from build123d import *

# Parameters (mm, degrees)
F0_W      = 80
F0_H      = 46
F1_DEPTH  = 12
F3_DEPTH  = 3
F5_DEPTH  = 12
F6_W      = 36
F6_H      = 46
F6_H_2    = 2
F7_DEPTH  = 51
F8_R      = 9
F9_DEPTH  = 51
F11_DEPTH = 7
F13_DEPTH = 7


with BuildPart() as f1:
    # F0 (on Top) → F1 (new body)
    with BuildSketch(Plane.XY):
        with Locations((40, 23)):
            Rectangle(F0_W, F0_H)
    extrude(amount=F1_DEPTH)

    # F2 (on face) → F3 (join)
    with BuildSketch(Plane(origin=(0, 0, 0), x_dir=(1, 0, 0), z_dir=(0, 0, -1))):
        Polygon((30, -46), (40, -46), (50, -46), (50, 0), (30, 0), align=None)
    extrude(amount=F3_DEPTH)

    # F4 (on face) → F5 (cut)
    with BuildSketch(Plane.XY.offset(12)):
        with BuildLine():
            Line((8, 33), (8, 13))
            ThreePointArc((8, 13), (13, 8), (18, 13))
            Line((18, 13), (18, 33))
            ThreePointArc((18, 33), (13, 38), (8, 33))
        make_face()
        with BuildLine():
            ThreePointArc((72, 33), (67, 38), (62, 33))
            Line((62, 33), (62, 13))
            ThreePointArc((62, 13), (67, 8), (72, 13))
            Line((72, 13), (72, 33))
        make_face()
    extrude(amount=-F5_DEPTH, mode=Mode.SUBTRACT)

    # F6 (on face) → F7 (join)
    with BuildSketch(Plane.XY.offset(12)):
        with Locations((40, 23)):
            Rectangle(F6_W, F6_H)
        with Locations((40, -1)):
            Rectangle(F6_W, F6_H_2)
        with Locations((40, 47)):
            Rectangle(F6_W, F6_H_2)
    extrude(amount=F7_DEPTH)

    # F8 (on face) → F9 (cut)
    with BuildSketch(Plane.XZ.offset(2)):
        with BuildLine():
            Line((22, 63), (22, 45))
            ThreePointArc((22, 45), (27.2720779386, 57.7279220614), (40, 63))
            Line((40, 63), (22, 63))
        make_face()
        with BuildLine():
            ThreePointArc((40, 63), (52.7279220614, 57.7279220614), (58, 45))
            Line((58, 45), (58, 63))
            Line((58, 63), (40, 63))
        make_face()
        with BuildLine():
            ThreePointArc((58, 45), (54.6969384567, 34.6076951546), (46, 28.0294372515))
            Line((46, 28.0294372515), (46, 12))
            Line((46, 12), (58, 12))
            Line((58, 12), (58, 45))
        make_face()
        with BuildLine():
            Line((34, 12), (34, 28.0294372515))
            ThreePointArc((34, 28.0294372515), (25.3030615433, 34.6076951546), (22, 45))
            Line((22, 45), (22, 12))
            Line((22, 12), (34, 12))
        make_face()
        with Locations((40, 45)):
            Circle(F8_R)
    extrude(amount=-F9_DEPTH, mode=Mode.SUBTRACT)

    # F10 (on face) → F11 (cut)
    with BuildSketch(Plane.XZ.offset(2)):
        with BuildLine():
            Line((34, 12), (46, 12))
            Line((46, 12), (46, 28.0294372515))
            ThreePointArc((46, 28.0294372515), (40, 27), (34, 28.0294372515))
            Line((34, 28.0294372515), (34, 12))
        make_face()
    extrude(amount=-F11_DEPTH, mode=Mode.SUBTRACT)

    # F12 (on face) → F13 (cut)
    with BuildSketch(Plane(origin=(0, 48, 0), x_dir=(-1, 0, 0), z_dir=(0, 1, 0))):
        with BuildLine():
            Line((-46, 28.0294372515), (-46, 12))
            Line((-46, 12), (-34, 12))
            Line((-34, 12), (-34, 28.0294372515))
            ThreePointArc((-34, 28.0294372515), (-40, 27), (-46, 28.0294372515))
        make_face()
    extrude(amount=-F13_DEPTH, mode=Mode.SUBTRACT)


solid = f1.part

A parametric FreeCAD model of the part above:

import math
import FreeCAD as App
import Part
import Sketcher
Q = App.Units.Quantity

doc = App.newDocument("Part")
params = doc.addObject("Spreadsheet::Sheet", "Params")
for row, (alias, value) in enumerate([
    ("sketch1_width", "80 mm"),
    ("sketch1_height", "46 mm"),
    ("pad1_length", "12 mm"),
    ("sketch2_width", "20 mm"),
    ("sketch2_height", "46 mm"),
    ("pad2_length", "3 mm"),
    ("sketch3_radius", "5 mm"),
    ("sketch3_height", "20 mm"),
    ("pocket1_length", "12 mm"),
    ("sketch4_width", "36 mm"),
    ("sketch4_height", "50 mm"),
    ("pad3_length", "51 mm"),
    ("sketch5_diameter", "18 mm"),
    ("sketch5_radius", "18 mm"),
    ("sketch5_width", "12 mm"),
    ("sketch5_height", "33 mm"),
    ("pocket2_length", "51 mm"),
    ("sketch6_radius", "18 mm"),
    ("sketch6_width", "12 mm"),
    ("pocket3_length", "7 mm"),
    ("sketch7_radius", "18 mm"),
    ("sketch7_width", "12 mm"),
    ("pocket4_length", "7 mm"),
], start=1):
    params.set(f"A{row}", alias)
    params.set(f"B{row}", "=" + value)
    params.setAlias(f"B{row}", alias)

body = doc.addObject("PartDesign::Body", "Body")

# Sketch on XY plane
sketch1 = doc.addObject("Sketcher::SketchObject", "Sketch")
body.addObject(sketch1)
sketch1.AttachmentSupport = (doc.XY_Plane, [""])
sketch1.MapMode = "FlatFace"
sketch1.addGeometry(Part.LineSegment(App.Vector(0, 46, 0), App.Vector(0, 0, 0)), False)
sketch1.addGeometry(Part.LineSegment(App.Vector(0, 0, 0), App.Vector(80, 0, 0)), False)
sketch1.addGeometry(Part.LineSegment(App.Vector(80, 0, 0), App.Vector(80, 46, 0)), False)
sketch1.addGeometry(Part.LineSegment(App.Vector(80, 46, 0), App.Vector(0, 46, 0)), False)
sketch1.addConstraint(Sketcher.Constraint("Coincident", 0, 2, 1, 1))
sketch1.addConstraint(Sketcher.Constraint("Coincident", 1, 2, 2, 1))
sketch1.addConstraint(Sketcher.Constraint("Coincident", 2, 2, 3, 1))
sketch1.addConstraint(Sketcher.Constraint("Coincident", 3, 2, 0, 1))
sketch1.addConstraint(Sketcher.Constraint("Vertical", 0))
sketch1.addConstraint(Sketcher.Constraint("Horizontal", 1))
sketch1.addConstraint(Sketcher.Constraint("Vertical", 2))
sketch1.addConstraint(Sketcher.Constraint("Horizontal", 3))
sketch1.addConstraint(Sketcher.Constraint("Coincident", 0, 2, -1, 1))
sketch1.addConstraint(Sketcher.Constraint("DistanceX", 1, 1, 1, 2, Q("80 mm")))
sketch1.addConstraint(Sketcher.Constraint("DistanceY", 0, 2, 0, 1, Q("46 mm")))
sketch1.setExpression("Constraints[9]", "Params.sketch1_width")
sketch1.setExpression("Constraints[10]", "Params.sketch1_height")
pad1 = doc.addObject("PartDesign::Pad", "Pad")
body.addObject(pad1)
pad1.Profile = sketch1
pad1.setExpression("Length", "Params.pad1_length")

# Sketch on XY plane
sketch2 = doc.addObject("Sketcher::SketchObject", "Sketch001")
body.addObject(sketch2)
sketch2.AttachmentSupport = (doc.XY_Plane, [""])
sketch2.MapMode = "FlatFace"
sketch2.addGeometry(Part.LineSegment(App.Vector(30, 46, 0), App.Vector(50, 46, 0)), False)
sketch2.addGeometry(Part.LineSegment(App.Vector(50, 46, 0), App.Vector(50, 0, 0)), False)
sketch2.addGeometry(Part.LineSegment(App.Vector(50, 0, 0), App.Vector(30, 0, 0)), False)
sketch2.addGeometry(Part.LineSegment(App.Vector(30, 0, 0), App.Vector(30, 46, 0)), False)
sketch2.addConstraint(Sketcher.Constraint("Coincident", 0, 2, 1, 1))
sketch2.addConstraint(Sketcher.Constraint("Coincident", 1, 2, 2, 1))
sketch2.addConstraint(Sketcher.Constraint("Coincident", 2, 2, 3, 1))
sketch2.addConstraint(Sketcher.Constraint("Coincident", 3, 2, 0, 1))
sketch2.addConstraint(Sketcher.Constraint("Horizontal", 0))
sketch2.addConstraint(Sketcher.Constraint("Vertical", 1))
sketch2.addConstraint(Sketcher.Constraint("Horizontal", 2))
sketch2.addConstraint(Sketcher.Constraint("Vertical", 3))
sketch2.addConstraint(Sketcher.Constraint("PointOnObject", 1, 2, -1))
sketch2.addConstraint(Sketcher.Constraint("DistanceX", 0, 1, 0, 2, Q("20 mm")))
sketch2.addConstraint(Sketcher.Constraint("DistanceY", 1, 2, 1, 1, Q("46 mm")))
sketch2.addConstraint(Sketcher.Constraint("DistanceX", -1, 1, 0, 2, Q("50 mm")))
sketch2.setExpression("Constraints[9]", "Params.sketch2_width")
sketch2.setExpression("Constraints[10]", "Params.sketch2_height")
pad2 = doc.addObject("PartDesign::Pad", "Pad001")
body.addObject(pad2)
pad2.Profile = sketch2
pad2.setExpression("Length", "Params.pad2_length")
pad2.Reversed = True

# Sketch on XY plane
sketch3 = doc.addObject("Sketcher::SketchObject", "Sketch002")
body.addObject(sketch3)
sketch3.AttachmentSupport = (doc.XY_Plane, [""])
sketch3.MapMode = "FlatFace"
sketch3.AttachmentOffset = App.Placement(App.Vector(0, 0, 12), App.Rotation())
sketch3.addGeometry(Part.LineSegment(App.Vector(8, 33, 0), App.Vector(8, 13, 0)), False)
sketch3.addGeometry(Part.ArcOfCircle(Part.Circle(App.Vector(13, 13, 0), App.Vector(0, 0, 1), 5), math.radians(180), math.radians(360)), False)
sketch3.addGeometry(Part.LineSegment(App.Vector(18, 13, 0), App.Vector(18, 33, 0)), False)
sketch3.addGeometry(Part.ArcOfCircle(Part.Circle(App.Vector(13, 33, 0), App.Vector(0, 0, 1), 5), math.radians(0), math.radians(180)), False)
sketch3.addGeometry(Part.ArcOfCircle(Part.Circle(App.Vector(67, 33, 0), App.Vector(0, 0, 1), 5), math.radians(0), math.radians(180)), False)
sketch3.addGeometry(Part.LineSegment(App.Vector(62, 33, 0), App.Vector(62, 13, 0)), False)
sketch3.addGeometry(Part.ArcOfCircle(Part.Circle(App.Vector(67, 13, 0), App.Vector(0, 0, 1), 5), math.radians(180), math.radians(360)), False)
sketch3.addGeometry(Part.LineSegment(App.Vector(72, 13, 0), App.Vector(72, 33, 0)), False)
sketch3.addConstraint(Sketcher.Constraint("Tangent", 0, 2, 1, 1))
sketch3.addConstraint(Sketcher.Constraint("Tangent", 1, 2, 2, 1))
sketch3.addConstraint(Sketcher.Constraint("Tangent", 2, 2, 3, 1))
sketch3.addConstraint(Sketcher.Constraint("Tangent", 3, 2, 0, 1))
sketch3.addConstraint(Sketcher.Constraint("Tangent", 4, 2, 5, 1))
sketch3.addConstraint(Sketcher.Constraint("Tangent", 5, 2, 6, 1))
sketch3.addConstraint(Sketcher.Constraint("Tangent", 6, 2, 7, 1))
sketch3.addConstraint(Sketcher.Constraint("Tangent", 7, 2, 4, 1))
sketch3.addConstraint(Sketcher.Constraint("Vertical", 0))
sketch3.addConstraint(Sketcher.Constraint("Vertical", 2))
sketch3.addConstraint(Sketcher.Constraint("Vertical", 5))
sketch3.addConstraint(Sketcher.Constraint("Vertical", 7))
sketch3.addConstraint(Sketcher.Constraint("Equal", 3, 4))
sketch3.addConstraint(Sketcher.Constraint("Horizontal", 3, 3, 4, 3))
sketch3.addConstraint(Sketcher.Constraint("Horizontal", 1, 3, 6, 3))
sketch3.addConstraint(Sketcher.Constraint("Radius", 1, Q("5 mm")))
sketch3.addConstraint(Sketcher.Constraint("DistanceY", 0, 2, 0, 1, Q("20 mm")))
sketch3.addConstraint(Sketcher.Constraint("DistanceX", -1, 1, 1, 3, Q("13 mm")))
sketch3.addConstraint(Sketcher.Constraint("DistanceY", -1, 1, 1, 3, Q("13 mm")))
sketch3.addConstraint(Sketcher.Constraint("DistanceX", -1, 1, 4, 3, Q("67 mm")))
sketch3.setExpression("Constraints[15]", "Params.sketch3_radius")
sketch3.setExpression("Constraints[16]", "Params.sketch3_height")
pocket1 = doc.addObject("PartDesign::Pocket", "Pocket")
body.addObject(pocket1)
pocket1.Profile = sketch3
pocket1.setExpression("Length", "Params.pocket1_length")

# Sketch on XY plane
sketch4 = doc.addObject("Sketcher::SketchObject", "Sketch003")
body.addObject(sketch4)
sketch4.AttachmentSupport = (doc.XY_Plane, [""])
sketch4.MapMode = "FlatFace"
sketch4.AttachmentOffset = App.Placement(App.Vector(0, 0, 12), App.Rotation())
sketch4.addGeometry(Part.LineSegment(App.Vector(22, -2, 0), App.Vector(58, -2, 0)), False)
sketch4.addGeometry(Part.LineSegment(App.Vector(58, -2, 0), App.Vector(58, 48, 0)), False)
sketch4.addGeometry(Part.LineSegment(App.Vector(58, 48, 0), App.Vector(22, 48, 0)), False)
sketch4.addGeometry(Part.LineSegment(App.Vector(22, 48, 0), App.Vector(22, -2, 0)), False)
sketch4.addConstraint(Sketcher.Constraint("Coincident", 0, 2, 1, 1))
sketch4.addConstraint(Sketcher.Constraint("Coincident", 1, 2, 2, 1))
sketch4.addConstraint(Sketcher.Constraint("Coincident", 2, 2, 3, 1))
sketch4.addConstraint(Sketcher.Constraint("Coincident", 3, 2, 0, 1))
sketch4.addConstraint(Sketcher.Constraint("Horizontal", 0))
sketch4.addConstraint(Sketcher.Constraint("Vertical", 1))
sketch4.addConstraint(Sketcher.Constraint("Horizontal", 2))
sketch4.addConstraint(Sketcher.Constraint("Vertical", 3))
sketch4.addConstraint(Sketcher.Constraint("DistanceX", 0, 1, 0, 2, Q("36 mm")))
sketch4.addConstraint(Sketcher.Constraint("DistanceY", 1, 1, 1, 2, Q("50 mm")))
sketch4.addConstraint(Sketcher.Constraint("DistanceX", -1, 1, 0, 2, Q("58 mm")))
sketch4.addConstraint(Sketcher.Constraint("DistanceY", 0, 2, -1, 1, Q("2 mm")))
sketch4.setExpression("Constraints[8]", "Params.sketch4_width")
sketch4.setExpression("Constraints[9]", "Params.sketch4_height")
pad3 = doc.addObject("PartDesign::Pad", "Pad002")
body.addObject(pad3)
pad3.Profile = sketch4
pad3.setExpression("Length", "Params.pad3_length")

# Sketch on XZ plane
sketch5 = doc.addObject("Sketcher::SketchObject", "Sketch004")
body.addObject(sketch5)
sketch5.AttachmentSupport = (doc.XZ_Plane, [""])
sketch5.MapMode = "FlatFace"
sketch5.AttachmentOffset = App.Placement(App.Vector(0, 0, 2), App.Rotation())
sketch5.addGeometry(Part.LineSegment(App.Vector(22, 63, 0), App.Vector(22, 45, 0)), False)
sketch5.addGeometry(Part.ArcOfCircle(Part.Circle(App.Vector(40, 45, 0), App.Vector(0, 0, 1), 18), math.radians(90), math.radians(180)), False)
sketch5.addGeometry(Part.LineSegment(App.Vector(40, 63, 0), App.Vector(22, 63, 0)), False)
sketch5.addGeometry(Part.ArcOfCircle(Part.Circle(App.Vector(40, 45, 0), App.Vector(0, 0, 1), 18), math.radians(0), math.radians(90)), False)
sketch5.addGeometry(Part.LineSegment(App.Vector(58, 45, 0), App.Vector(58, 63, 0)), False)
sketch5.addGeometry(Part.LineSegment(App.Vector(58, 63, 0), App.Vector(40, 63, 0)), False)
sketch5.addGeometry(Part.ArcOfCircle(Part.Circle(App.Vector(40, 45, 0), App.Vector(0, 0, 1), 18), math.radians(-70.528779), math.radians(0)), False)
sketch5.addGeometry(Part.LineSegment(App.Vector(46, 28.029437, 0), App.Vector(46, 12, 0)), False)
sketch5.addGeometry(Part.LineSegment(App.Vector(46, 12, 0), App.Vector(58, 12, 0)), False)
sketch5.addGeometry(Part.LineSegment(App.Vector(58, 12, 0), App.Vector(58, 45, 0)), False)
sketch5.addGeometry(Part.LineSegment(App.Vector(34, 12, 0), App.Vector(34, 28.029437, 0)), False)
sketch5.addGeometry(Part.ArcOfCircle(Part.Circle(App.Vector(40, 45, 0), App.Vector(0, 0, 1), 18), math.radians(180), math.radians(250.528779)), False)
sketch5.addGeometry(Part.LineSegment(App.Vector(22, 45, 0), App.Vector(22, 12, 0)), False)
sketch5.addGeometry(Part.LineSegment(App.Vector(22, 12, 0), App.Vector(34, 12, 0)), False)
sketch5.addGeometry(Part.Circle(App.Vector(40, 45, 0), App.Vector(0, 0, 1), 9), False)
sketch5.addConstraint(Sketcher.Constraint("Tangent", 0, 2, 1, 2))
sketch5.addConstraint(Sketcher.Constraint("Tangent", 1, 1, 2, 1))
sketch5.addConstraint(Sketcher.Constraint("Coincident", 2, 2, 0, 1))
sketch5.addConstraint(Sketcher.Constraint("Tangent", 3, 1, 4, 1))
sketch5.addConstraint(Sketcher.Constraint("Coincident", 4, 2, 5, 1))
sketch5.addConstraint(Sketcher.Constraint("Tangent", 5, 2, 3, 2))
sketch5.addConstraint(Sketcher.Constraint("Coincident", 6, 1, 7, 1))
sketch5.addConstraint(Sketcher.Constraint("Coincident", 7, 2, 8, 1))
sketch5.addConstraint(Sketcher.Constraint("Coincident", 8, 2, 9, 1))
sketch5.addConstraint(Sketcher.Constraint("Tangent", 9, 2, 6, 2))
sketch5.addConstraint(Sketcher.Constraint("Coincident", 10, 2, 11, 2))
sketch5.addConstraint(Sketcher.Constraint("Tangent", 11, 1, 12, 1))
sketch5.addConstraint(Sketcher.Constraint("Coincident", 12, 2, 13, 1))
sketch5.addConstraint(Sketcher.Constraint("Coincident", 13, 2, 10, 1))
sketch5.addConstraint(Sketcher.Constraint("Vertical", 0))
sketch5.addConstraint(Sketcher.Constraint("Horizontal", 2))
sketch5.addConstraint(Sketcher.Constraint("Vertical", 4))
sketch5.addConstraint(Sketcher.Constraint("Horizontal", 5))
sketch5.addConstraint(Sketcher.Constraint("Vertical", 7))
sketch5.addConstraint(Sketcher.Constraint("Horizontal", 8))
sketch5.addConstraint(Sketcher.Constraint("Vertical", 9))
sketch5.addConstraint(Sketcher.Constraint("Vertical", 10))
sketch5.addConstraint(Sketcher.Constraint("Vertical", 12))
sketch5.addConstraint(Sketcher.Constraint("Horizontal", 13))
sketch5.addConstraint(Sketcher.Constraint("Coincident", 3, 3, 1, 3))
sketch5.addConstraint(Sketcher.Constraint("Coincident", 6, 3, 1, 3))
sketch5.addConstraint(Sketcher.Constraint("Coincident", 11, 3, 1, 3))
sketch5.addConstraint(Sketcher.Constraint("Coincident", 14, 3, 1, 3))
sketch5.addConstraint(Sketcher.Constraint("Equal", 1, 3))
sketch5.addConstraint(Sketcher.Constraint("Equal", 3, 6))
sketch5.addConstraint(Sketcher.Constraint("Equal", 6, 11))
sketch5.addConstraint(Sketcher.Constraint("Horizontal", 6, 1, 10, 2))
sketch5.addConstraint(Sketcher.Constraint("Horizontal", 8, 2, 12, 2))
sketch5.addConstraint(Sketcher.Constraint("Diameter", 14, Q("18 mm")))
sketch5.addConstraint(Sketcher.Constraint("Radius", 1, Q("18 mm")))
sketch5.addConstraint(Sketcher.Constraint("DistanceX", 8, 1, 8, 2, Q("12 mm")))
sketch5.addConstraint(Sketcher.Constraint("DistanceY", 9, 1, 9, 2, Q("33 mm")))
sketch5.addConstraint(Sketcher.Constraint("DistanceX", -1, 1, 1, 3, Q("40 mm")))
sketch5.addConstraint(Sketcher.Constraint("DistanceY", -1, 1, 1, 3, Q("45 mm")))
sketch5.setExpression("Constraints[33]", "Params.sketch5_diameter")
sketch5.setExpression("Constraints[34]", "Params.sketch5_radius")
sketch5.setExpression("Constraints[35]", "Params.sketch5_width")
sketch5.setExpression("Constraints[36]", "Params.sketch5_height")
pocket2 = doc.addObject("PartDesign::Pocket", "Pocket001")
body.addObject(pocket2)
pocket2.Profile = sketch5
pocket2.setExpression("Length", "Params.pocket2_length")

# Sketch on XZ plane
sketch6 = doc.addObject("Sketcher::SketchObject", "Sketch005")
body.addObject(sketch6)
sketch6.AttachmentSupport = (doc.XZ_Plane, [""])
sketch6.MapMode = "FlatFace"
sketch6.AttachmentOffset = App.Placement(App.Vector(0, 0, 2), App.Rotation())
sketch6.addGeometry(Part.LineSegment(App.Vector(34, 12, 0), App.Vector(46, 12, 0)), False)
sketch6.addGeometry(Part.LineSegment(App.Vector(46, 12, 0), App.Vector(46, 28.029437, 0)), False)
sketch6.addGeometry(Part.ArcOfCircle(Part.Circle(App.Vector(40, 45, 0), App.Vector(0, 0, 1), 18), math.radians(-109.471221), math.radians(-70.528779)), False)
sketch6.addGeometry(Part.LineSegment(App.Vector(34, 28.029437, 0), App.Vector(34, 12, 0)), False)
sketch6.addConstraint(Sketcher.Constraint("Coincident", 0, 2, 1, 1))
sketch6.addConstraint(Sketcher.Constraint("Coincident", 1, 2, 2, 2))
sketch6.addConstraint(Sketcher.Constraint("Coincident", 2, 1, 3, 1))
sketch6.addConstraint(Sketcher.Constraint("Coincident", 3, 2, 0, 1))
sketch6.addConstraint(Sketcher.Constraint("Horizontal", 0))
sketch6.addConstraint(Sketcher.Constraint("Vertical", 1))
sketch6.addConstraint(Sketcher.Constraint("Vertical", 3))
sketch6.addConstraint(Sketcher.Constraint("Horizontal", 1, 2, 2, 1))
sketch6.addConstraint(Sketcher.Constraint("Radius", 2, Q("18 mm")))
sketch6.addConstraint(Sketcher.Constraint("DistanceX", 0, 1, 0, 2, Q("12 mm")))
sketch6.addConstraint(Sketcher.Constraint("DistanceX", -1, 1, 2, 3, Q("40 mm")))
sketch6.addConstraint(Sketcher.Constraint("DistanceY", -1, 1, 2, 3, Q("45 mm")))
sketch6.addConstraint(Sketcher.Constraint("DistanceY", -1, 1, 0, 2, Q("12 mm")))
sketch6.setExpression("Constraints[8]", "Params.sketch6_radius")
sketch6.setExpression("Constraints[9]", "Params.sketch6_width")
pocket3 = doc.addObject("PartDesign::Pocket", "Pocket002")
body.addObject(pocket3)
pocket3.Profile = sketch6
pocket3.setExpression("Length", "Params.pocket3_length")

# Sketch on XZ plane
sketch7 = doc.addObject("Sketcher::SketchObject", "Sketch006")
body.addObject(sketch7)
sketch7.AttachmentSupport = (doc.XZ_Plane, [""])
sketch7.MapMode = "FlatFace"
sketch7.AttachmentOffset = App.Placement(App.Vector(0, 0, -48), App.Rotation())
sketch7.addGeometry(Part.LineSegment(App.Vector(46, 28.029437, 0), App.Vector(46, 12, 0)), False)
sketch7.addGeometry(Part.LineSegment(App.Vector(46, 12, 0), App.Vector(34, 12, 0)), False)
sketch7.addGeometry(Part.LineSegment(App.Vector(34, 12, 0), App.Vector(34, 28.029437, 0)), False)
sketch7.addGeometry(Part.ArcOfCircle(Part.Circle(App.Vector(40, 45, 0), App.Vector(0, 0, 1), 18), math.radians(-109.471221), math.radians(-70.528779)), False)
sketch7.addConstraint(Sketcher.Constraint("Coincident", 0, 2, 1, 1))
sketch7.addConstraint(Sketcher.Constraint("Coincident", 1, 2, 2, 1))
sketch7.addConstraint(Sketcher.Constraint("Coincident", 2, 2, 3, 1))
sketch7.addConstraint(Sketcher.Constraint("Coincident", 3, 2, 0, 1))
sketch7.addConstraint(Sketcher.Constraint("Vertical", 0))
sketch7.addConstraint(Sketcher.Constraint("Horizontal", 1))
sketch7.addConstraint(Sketcher.Constraint("Vertical", 2))
sketch7.addConstraint(Sketcher.Constraint("Horizontal", 2, 2, 3, 2))
sketch7.addConstraint(Sketcher.Constraint("Radius", 3, Q("18 mm")))
sketch7.addConstraint(Sketcher.Constraint("DistanceX", 1, 2, 1, 1, Q("12 mm")))
sketch7.addConstraint(Sketcher.Constraint("DistanceX", -1, 1, 3, 3, Q("40 mm")))
sketch7.addConstraint(Sketcher.Constraint("DistanceY", -1, 1, 3, 3, Q("45 mm")))
sketch7.addConstraint(Sketcher.Constraint("DistanceY", -1, 1, 0, 2, Q("12 mm")))
sketch7.setExpression("Constraints[8]", "Params.sketch7_radius")
sketch7.setExpression("Constraints[9]", "Params.sketch7_width")
pocket4 = doc.addObject("PartDesign::Pocket", "Pocket003")
body.addObject(pocket4)
pocket4.Profile = sketch7
pocket4.setExpression("Length", "Params.pocket4_length")
pocket4.Reversed = True

doc.recompute()
